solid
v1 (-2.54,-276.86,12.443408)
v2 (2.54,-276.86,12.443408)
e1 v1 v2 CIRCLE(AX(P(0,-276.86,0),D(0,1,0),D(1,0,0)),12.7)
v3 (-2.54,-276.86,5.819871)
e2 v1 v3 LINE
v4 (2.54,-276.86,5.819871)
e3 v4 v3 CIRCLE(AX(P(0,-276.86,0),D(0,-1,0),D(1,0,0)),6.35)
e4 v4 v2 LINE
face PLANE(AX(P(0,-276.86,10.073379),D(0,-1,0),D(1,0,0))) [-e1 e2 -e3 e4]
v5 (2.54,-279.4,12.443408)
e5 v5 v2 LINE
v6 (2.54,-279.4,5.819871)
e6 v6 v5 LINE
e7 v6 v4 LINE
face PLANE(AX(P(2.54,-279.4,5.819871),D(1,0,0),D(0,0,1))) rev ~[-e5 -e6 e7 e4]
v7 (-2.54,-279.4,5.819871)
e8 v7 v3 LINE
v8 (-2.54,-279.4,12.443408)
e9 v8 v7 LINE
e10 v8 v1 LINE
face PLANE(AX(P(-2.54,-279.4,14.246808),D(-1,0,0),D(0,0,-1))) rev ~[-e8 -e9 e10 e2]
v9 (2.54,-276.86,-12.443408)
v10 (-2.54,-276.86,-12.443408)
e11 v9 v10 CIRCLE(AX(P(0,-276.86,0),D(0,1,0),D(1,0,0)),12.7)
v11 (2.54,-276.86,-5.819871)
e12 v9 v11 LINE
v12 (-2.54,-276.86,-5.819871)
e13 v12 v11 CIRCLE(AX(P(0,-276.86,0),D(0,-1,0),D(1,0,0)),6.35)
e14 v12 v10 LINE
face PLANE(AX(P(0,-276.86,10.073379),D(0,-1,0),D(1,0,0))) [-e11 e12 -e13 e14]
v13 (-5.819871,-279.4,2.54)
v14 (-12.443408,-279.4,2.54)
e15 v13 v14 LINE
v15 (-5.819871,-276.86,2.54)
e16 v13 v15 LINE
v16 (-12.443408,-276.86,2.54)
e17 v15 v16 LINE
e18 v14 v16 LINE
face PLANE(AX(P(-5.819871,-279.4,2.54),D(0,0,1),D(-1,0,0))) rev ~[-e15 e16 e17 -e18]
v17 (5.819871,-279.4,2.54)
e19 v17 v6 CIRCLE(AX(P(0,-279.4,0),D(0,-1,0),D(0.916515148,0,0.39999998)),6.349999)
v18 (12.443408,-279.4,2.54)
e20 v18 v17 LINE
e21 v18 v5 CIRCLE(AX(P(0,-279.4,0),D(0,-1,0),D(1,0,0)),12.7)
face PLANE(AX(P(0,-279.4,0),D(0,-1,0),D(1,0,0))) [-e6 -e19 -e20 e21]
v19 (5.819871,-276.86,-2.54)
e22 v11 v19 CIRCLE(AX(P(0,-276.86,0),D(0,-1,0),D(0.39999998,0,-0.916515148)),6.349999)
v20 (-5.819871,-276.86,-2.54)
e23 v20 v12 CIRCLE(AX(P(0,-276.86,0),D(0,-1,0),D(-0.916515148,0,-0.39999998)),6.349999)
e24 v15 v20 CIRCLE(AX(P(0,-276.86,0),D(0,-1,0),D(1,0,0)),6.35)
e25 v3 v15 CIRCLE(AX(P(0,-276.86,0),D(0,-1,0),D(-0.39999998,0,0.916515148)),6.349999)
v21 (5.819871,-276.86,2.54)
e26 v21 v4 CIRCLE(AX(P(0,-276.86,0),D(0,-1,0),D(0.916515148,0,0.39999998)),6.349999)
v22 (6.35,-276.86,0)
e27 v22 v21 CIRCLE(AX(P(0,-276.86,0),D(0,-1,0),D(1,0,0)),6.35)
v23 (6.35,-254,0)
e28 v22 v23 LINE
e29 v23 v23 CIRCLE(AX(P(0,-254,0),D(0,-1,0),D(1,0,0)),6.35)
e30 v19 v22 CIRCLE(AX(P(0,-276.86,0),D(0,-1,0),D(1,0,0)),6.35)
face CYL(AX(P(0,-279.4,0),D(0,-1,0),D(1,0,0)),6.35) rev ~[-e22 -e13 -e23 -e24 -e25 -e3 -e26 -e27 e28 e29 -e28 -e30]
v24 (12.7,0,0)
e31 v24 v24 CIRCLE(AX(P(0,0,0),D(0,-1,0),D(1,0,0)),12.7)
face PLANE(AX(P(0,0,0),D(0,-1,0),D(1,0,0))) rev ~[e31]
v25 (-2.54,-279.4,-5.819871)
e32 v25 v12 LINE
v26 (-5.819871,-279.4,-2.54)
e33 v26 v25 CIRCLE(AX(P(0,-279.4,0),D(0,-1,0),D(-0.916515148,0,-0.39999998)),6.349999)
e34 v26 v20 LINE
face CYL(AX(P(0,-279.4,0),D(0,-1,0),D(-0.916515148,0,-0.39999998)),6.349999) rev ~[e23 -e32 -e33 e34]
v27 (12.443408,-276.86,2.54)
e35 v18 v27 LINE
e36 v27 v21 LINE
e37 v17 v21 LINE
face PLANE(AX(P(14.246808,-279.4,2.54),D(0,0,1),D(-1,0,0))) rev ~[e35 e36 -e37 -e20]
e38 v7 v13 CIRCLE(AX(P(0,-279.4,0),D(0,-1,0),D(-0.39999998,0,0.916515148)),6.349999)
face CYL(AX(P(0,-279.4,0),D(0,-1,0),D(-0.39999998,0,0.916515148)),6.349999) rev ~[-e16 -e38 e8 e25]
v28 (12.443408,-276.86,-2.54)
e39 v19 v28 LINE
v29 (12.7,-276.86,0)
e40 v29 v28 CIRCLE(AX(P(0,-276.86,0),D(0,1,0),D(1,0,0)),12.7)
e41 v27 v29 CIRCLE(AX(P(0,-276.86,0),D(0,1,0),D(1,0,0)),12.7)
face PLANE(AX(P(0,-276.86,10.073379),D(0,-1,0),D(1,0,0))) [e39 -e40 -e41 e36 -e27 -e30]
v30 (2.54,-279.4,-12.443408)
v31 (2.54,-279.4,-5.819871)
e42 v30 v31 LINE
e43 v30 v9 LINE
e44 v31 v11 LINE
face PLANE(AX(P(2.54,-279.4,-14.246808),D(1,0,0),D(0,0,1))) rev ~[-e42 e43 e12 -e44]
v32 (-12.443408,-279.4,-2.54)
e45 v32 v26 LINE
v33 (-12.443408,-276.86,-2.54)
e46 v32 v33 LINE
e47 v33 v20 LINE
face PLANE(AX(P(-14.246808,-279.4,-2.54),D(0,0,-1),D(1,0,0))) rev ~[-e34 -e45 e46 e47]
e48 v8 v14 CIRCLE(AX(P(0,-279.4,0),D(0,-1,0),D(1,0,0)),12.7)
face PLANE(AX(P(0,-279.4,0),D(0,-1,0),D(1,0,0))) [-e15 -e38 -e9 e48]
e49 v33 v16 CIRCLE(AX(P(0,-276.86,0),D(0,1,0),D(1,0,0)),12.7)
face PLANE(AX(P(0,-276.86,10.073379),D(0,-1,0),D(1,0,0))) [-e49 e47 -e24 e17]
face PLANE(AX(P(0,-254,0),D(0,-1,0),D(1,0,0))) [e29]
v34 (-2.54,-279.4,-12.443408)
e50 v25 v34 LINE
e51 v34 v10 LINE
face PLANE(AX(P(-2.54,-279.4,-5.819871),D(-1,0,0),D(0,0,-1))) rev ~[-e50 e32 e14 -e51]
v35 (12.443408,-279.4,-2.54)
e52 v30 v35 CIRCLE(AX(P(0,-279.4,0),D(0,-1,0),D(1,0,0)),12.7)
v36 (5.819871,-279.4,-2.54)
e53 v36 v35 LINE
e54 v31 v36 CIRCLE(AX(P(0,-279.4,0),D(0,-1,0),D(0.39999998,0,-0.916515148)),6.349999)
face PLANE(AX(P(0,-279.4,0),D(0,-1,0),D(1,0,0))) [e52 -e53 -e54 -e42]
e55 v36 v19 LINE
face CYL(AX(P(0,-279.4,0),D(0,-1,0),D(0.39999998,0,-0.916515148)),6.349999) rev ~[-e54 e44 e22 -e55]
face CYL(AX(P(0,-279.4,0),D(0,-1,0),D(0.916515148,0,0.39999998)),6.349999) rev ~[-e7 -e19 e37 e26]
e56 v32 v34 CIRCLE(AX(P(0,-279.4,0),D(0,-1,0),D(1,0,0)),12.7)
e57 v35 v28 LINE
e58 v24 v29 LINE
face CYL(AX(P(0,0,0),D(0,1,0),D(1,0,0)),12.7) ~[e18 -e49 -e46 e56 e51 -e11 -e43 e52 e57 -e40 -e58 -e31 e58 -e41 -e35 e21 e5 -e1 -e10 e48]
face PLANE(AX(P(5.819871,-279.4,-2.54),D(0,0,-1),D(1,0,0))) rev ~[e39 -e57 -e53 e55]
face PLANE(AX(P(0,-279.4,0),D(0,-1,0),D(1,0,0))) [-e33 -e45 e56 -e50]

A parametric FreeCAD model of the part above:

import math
import FreeCAD as App
import Part
import Sketcher
Q = App.Units.Quantity

doc = App.newDocument("Part")
body = doc.addObject("PartDesign::Body", "Body")

# Sketch on XZ plane
sketch1 = body.newObject("Sketcher::SketchObject", "Sketch")
sketch1.AttachmentSupport = (doc.getObject("XZ_Plane"), [""])
sketch1.MapMode = "FlatFace"
sketch1.addGeometry(Part.Circle(App.Vector(0, 0, 0), App.Vector(0, 0, 1), 13), False)
sketch1.addConstraint([
    Sketcher.Constraint("Coincident", 0, 3, -1, 1),
    Sketcher.Constraint("Diameter", 0, Q("1 in")),
])
pad1 = body.newObject("PartDesign::Pad", "Pad")
pad1.Profile = sketch1
pad1.Length = Q("11 in")

# Sketch on XZ plane
sketch2 = body.newObject("Sketcher::SketchObject", "Sketch001")
sketch2.AttachmentSupport = (doc.getObject("XZ_Plane"), [""])
sketch2.MapMode = "FlatFace"
sketch2.AttachmentOffset = App.Placement(App.Vector(0, 0, 11 * 25.4), App.Rotation())
sketch2.addGeometry(Part.Circle(App.Vector(0, 0, 0), App.Vector(0, 0, 1), 6), False)
sketch2.addConstraint([
    Sketcher.Constraint("Coincident", 0, 3, -1, 1),
    Sketcher.Constraint("Diameter", 0, Q("0.5 in")),
])
pocket1 = body.newObject("PartDesign::Pocket", "Pocket")
pocket1.Profile = sketch2
pocket1.Length = Q("1 in")

# Sketch on XZ plane
sketch3 = body.newObject("Sketcher::SketchObject", "Sketch002")
sketch3.AttachmentSupport = (doc.getObject("XZ_Plane"), [""])
sketch3.MapMode = "FlatFace"
sketch3.AttachmentOffset = App.Placement(App.Vector(0, 0, 11 * 25.4), App.Rotation())
sketch3.addGeometry([
    Part.LineSegment(App.Vector(-2.5, 14.2, 0), App.Vector(-2.5, 5.8, 0)),  # 0
    Part.ArcOfCircle(Part.Circle(App.Vector(0, 0, 0), App.Vector(0, 0, 1), 6.3), math.radians(114), math.radians(156)),  # 1
    Part.LineSegment(App.Vector(-5.8, 2.5, 0), App.Vector(-14.2, 2.5, 0)),  # 2
    Part.LineSegment(App.Vector(-14.2, 2.5, 0), App.Vector(-14.2, -2.5, 0)),  # 3
    Part.LineSegment(App.Vector(-14.2, -2.5, 0), App.Vector(-5.8, -2.5, 0)),  # 4
    Part.ArcOfCircle(Part.Circle(App.Vector(0, 0, 0), App.Vector(0, 0, 1), 6.3), math.radians(-156), math.radians(-114)),  # 5
    Part.LineSegment(App.Vector(-2.5, -5.8, 0), App.Vector(-2.5, -14.2, 0)),  # 6
    Part.LineSegment(App.Vector(-2.5, -14.2, 0), App.Vector(2.5, -14.2, 0)),  # 7
    Part.LineSegment(App.Vector(2.5, -14.2, 0), App.Vector(2.5, -5.8, 0)),  # 8
    Part.ArcOfCircle(Part.Circle(App.Vector(0, 0, 0), App.Vector(0, 0, 1), 6.3), math.radians(-66), math.radians(-24)),  # 9
    Part.LineSegment(App.Vector(5.8, -2.5, 0), App.Vector(14.2, -2.5, 0)),  # 10
    Part.LineSegment(App.Vector(14.2, -2.5, 0), App.Vector(14.2, 2.5, 0)),  # 11
    Part.LineSegment(App.Vector(14.2, 2.5, 0), App.Vector(5.8, 2.5, 0)),  # 12
    Part.ArcOfCircle(Part.Circle(App.Vector(0, 0, 0), App.Vector(0, 0, 1), 6.3), math.radians(24), math.radians(66)),  # 13
    Part.LineSegment(App.Vector(2.5, 5.8, 0), App.Vector(2.5, 14.2, 0)),  # 14
    Part.LineSegment(App.Vector(2.5, 14.2, 0), App.Vector(-2.5, 14.2, 0)),  # 15
], False)
sketch3.addConstraint([
    Sketcher.Constraint("Coincident", 0, 2, 1, 1),
    Sketcher.Constraint("Coincident", 1, 2, 2, 1),
    Sketcher.Constraint("Coincident", 2, 2, 3, 1),
    Sketcher.Constraint("Coincident", 3, 2, 4, 1),
    Sketcher.Constraint("Coincident", 4, 2, 5, 1),
    Sketcher.Constraint("Coincident", 5, 2, 6, 1),
    Sketcher.Constraint("Coincident", 6, 2, 7, 1),
    Sketcher.Constraint("Coincident", 7, 2, 8, 1),
    Sketcher.Constraint("Coincident", 8, 2, 9, 1),
    Sketcher.Constraint("Coincident", 9, 2, 10, 1),
    Sketcher.Constraint("Coincident", 10, 2, 11, 1),
    Sketcher.Constraint("Coincident", 11, 2, 12, 1),
    Sketcher.Constraint("Coincident", 12, 2, 13, 1),
    Sketcher.Constraint("Coincident", 13, 2, 14, 1),
    Sketcher.Constraint("Coincident", 14, 2, 15, 1),
    Sketcher.Constraint("Coincident", 15, 2, 0, 1),
    Sketcher.Constraint("Vertical", 0),
    Sketcher.Constraint("Horizontal", 2),
    Sketcher.Constraint("Vertical", 3),
    Sketcher.Constraint("Horizontal", 4),
    Sketcher.Constraint("Vertical", 6),
    Sketcher.Constraint("Horizontal", 7),
    Sketcher.Constraint("Vertical", 8),
    Sketcher.Constraint("Horizontal", 10),
    Sketcher.Constraint("Vertical", 11),
    Sketcher.Constraint("Horizontal", 12),
    Sketcher.Constraint("Vertical", 14),
    Sketcher.Constraint("Horizontal", 15),
    Sketcher.Constraint("Coincident", 1, 3, -1, 1),
    Sketcher.Constraint("Coincident", 5, 3, -1, 1),
    Sketcher.Constraint("Coincident", 9, 3, -1, 1),
    Sketcher.Constraint("Coincident", 13, 3, -1, 1),
    Sketcher.Constraint("Equal", 1, 5),
    Sketcher.Constraint("Equal", 5, 9),
    Sketcher.Constraint("Equal", 9, 13),
    Sketcher.Constraint("Symmetric", 2, 2, 10, 2, -1, 1),
    Sketcher.Constraint("Symmetric", 6, 2, 14, 2, -1, 1),
    Sketcher.Constraint("Horizontal", 5, 2, 8, 2),
    Sketcher.Constraint("Horizontal", 4, 2, 9, 2),
    Sketcher.Constraint("Horizontal", 2, 2, 11, 2),
    Sketcher.Constraint("Horizontal", 0, 2, 13, 2),
    Sketcher.Constraint("Equal", 12, 0),
    Sketcher.Constraint("Equal", 15, 3),
    Sketcher.Constraint("Radius", 1, Q("0.25 in")),
    Sketcher.Constraint("DistanceX", 7, 1, 7, 2, Q("0.2 in")),
    Sketcher.Constraint("DistanceX", 2, 2, 2, 1, 8.426937),
])
pocket2 = body.newObject("PartDesign::Pocket", "Pocket001")
pocket2.Profile = sketch3
pocket2.Length = Q("0.1 in")

doc.recompute()
